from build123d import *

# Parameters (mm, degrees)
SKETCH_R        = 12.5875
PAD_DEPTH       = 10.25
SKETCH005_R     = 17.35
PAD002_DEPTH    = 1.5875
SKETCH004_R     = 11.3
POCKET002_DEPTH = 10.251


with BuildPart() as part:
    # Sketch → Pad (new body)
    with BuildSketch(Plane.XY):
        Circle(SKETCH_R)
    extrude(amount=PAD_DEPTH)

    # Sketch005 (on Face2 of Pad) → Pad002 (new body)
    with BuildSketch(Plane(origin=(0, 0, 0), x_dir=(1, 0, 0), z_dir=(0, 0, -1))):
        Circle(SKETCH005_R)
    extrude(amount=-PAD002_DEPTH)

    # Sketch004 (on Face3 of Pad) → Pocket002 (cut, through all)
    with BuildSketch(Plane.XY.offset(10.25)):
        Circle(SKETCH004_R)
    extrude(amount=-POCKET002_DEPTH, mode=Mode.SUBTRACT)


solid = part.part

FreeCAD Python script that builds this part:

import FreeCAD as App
import Part
import Sketcher

doc = App.newDocument("Part")
body = doc.addObject("PartDesign::Body", "Body")

# Sketch on XY plane
sketch1 = doc.addObject("Sketcher::SketchObject", "Sketch")
body.addObject(sketch1)
sketch1.AttachmentSupport = (doc.XY_Plane, [""])
sketch1.MapMode = "FlatFace"
sketch1.addGeometry(Part.Circle(App.Vector(0, 0, 0), App.Vector(0, 0, 1), 13), False)
sketch1.addConstraint(Sketcher.Constraint("Coincident", 0, 3, -1, 1))
sketch1.addConstraint(Sketcher.Constraint("Diameter", 0, 25.175))
pad1 = doc.addObject("PartDesign::Pad", "Pad")
body.addObject(pad1)
pad1.Profile = sketch1
pad1.Length = 10.25

# Sketch on XY plane
sketch2 = doc.addObject("Sketcher::SketchObject", "Sketch001")
body.addObject(sketch2)
sketch2.AttachmentSupport = (doc.XY_Plane, [""])
sketch2.MapMode = "FlatFace"
sketch2.addGeometry(Part.Circle(App.Vector(0, 0, 0), App.Vector(0, 0, 1), 17), False)
sketch2.addConstraint(Sketcher.Constraint("Coincident", 0, 3, -1, 1))
sketch2.addConstraint(Sketcher.Constraint("Diameter", 0, 34.7))
pad2 = doc.addObject("PartDesign::Pad", "Pad001")
body.addObject(pad2)
pad2.Profile = sketch2
pad2.Length = 1.5875

# Sketch on XY plane
sketch3 = doc.addObject("Sketcher::SketchObject", "Sketch002")
body.addObject(sketch3)
sketch3.AttachmentSupport = (doc.XY_Plane, [""])
sketch3.MapMode = "FlatFace"
sketch3.AttachmentOffset = App.Placement(App.Vector(0, 0, 10.25), App.Rotation())
sketch3.addGeometry(Part.Circle(App.Vector(0, 0, 0), App.Vector(0, 0, 1), 11), False)
sketch3.addConstraint(Sketcher.Constraint("Coincident", 0, 3, -1, 1))
sketch3.addConstraint(Sketcher.Constraint("Diameter", 0, 22.6))
pocket1 = doc.addObject("PartDesign::Pocket", "Pocket")
body.addObject(pocket1)
pocket1.Profile = sketch3
pocket1.Type = "ThroughAll"

doc.recompute()
